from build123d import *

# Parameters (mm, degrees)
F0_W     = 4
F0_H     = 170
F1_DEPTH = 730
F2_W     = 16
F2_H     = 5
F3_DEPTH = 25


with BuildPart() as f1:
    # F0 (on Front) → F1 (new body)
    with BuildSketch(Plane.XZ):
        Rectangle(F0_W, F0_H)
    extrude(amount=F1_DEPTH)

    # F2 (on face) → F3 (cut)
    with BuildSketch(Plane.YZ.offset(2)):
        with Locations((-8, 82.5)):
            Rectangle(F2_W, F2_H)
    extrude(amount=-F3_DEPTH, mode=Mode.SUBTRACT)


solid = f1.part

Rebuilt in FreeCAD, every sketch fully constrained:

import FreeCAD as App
import Part
import Sketcher
from FreeCAD import Vector


def add_polygon(sketch, points):
    """Adds a closed chain of lines whose ends are joined by coincident constraints."""
    first, n = sketch.GeometryCount, len(points)
    for a, b in zip(points, points[1:] + points[:1]):
        sketch.addGeometry(Part.LineSegment(App.Vector(*a, 0), App.Vector(*b, 0)), False)
    for i in range(n):
        sketch.addConstraint(Sketcher.Constraint("Coincident", first + i, 2, first + (i + 1) % n, 1))

doc = App.newDocument("Part")
body = doc.addObject("PartDesign::Body", "Body")

# Sketch on XZ plane
sketch1 = body.newObject("Sketcher::SketchObject", "Sketch")
sketch1.AttachmentSupport = (doc.getObject("XZ_Plane"), [""])
sketch1.MapMode = "FlatFace"
add_polygon(sketch1, [(-2, 85), (-2, -85), (2, -85), (2, 85)])  # lines 0-3
sketch1.addConstraint([
    Sketcher.Constraint("Vertical", 0),
    Sketcher.Constraint("Horizontal", 1),
    Sketcher.Constraint("Vertical", 2),
    Sketcher.Constraint("Horizontal", 3),
    Sketcher.Constraint("Symmetric", 0, 2, 2, 2, -1, 1),
    Sketcher.Constraint("DistanceX", 1, 1, 1, 2, 4.0),
    Sketcher.Constraint("DistanceY", 0, 2, 0, 1, 170.0),
])
pad1 = body.newObject("PartDesign::Pad", "Pad")
pad1.Profile = sketch1
pad1.Length = 730

# Sketch on YZ plane
sketch2 = body.newObject("Sketcher::SketchObject", "Sketch001")
sketch2.AttachmentSupport = (doc.getObject("YZ_Plane"), [""])
sketch2.MapMode = "FlatFace"
sketch2.AttachmentOffset = App.Placement(Vector(0, 0, 2), App.Rotation())
add_polygon(sketch2, [(-16, 85), (-16, 80), (0, 80), (0, 85)])  # lines 0-3
sketch2.addConstraint([
    Sketcher.Constraint("Vertical", 0),
    Sketcher.Constraint("Horizontal", 1),
    Sketcher.Constraint("Vertical", 2),
    Sketcher.Constraint("Horizontal", 3),
    Sketcher.Constraint("PointOnObject", 1, 2, -2),
    Sketcher.Constraint("DistanceX", 1, 1, 1, 2, 16.0),
    Sketcher.Constraint("DistanceY", 0, 2, 0, 1, 5.0),
    Sketcher.Constraint("DistanceY", -1, 1, 0, 2, 80.0),
])
pocket1 = body.newObject("PartDesign::Pocket", "Pocket")
pocket1.Profile = sketch2
pocket1.Length = 25

doc.recompute()
